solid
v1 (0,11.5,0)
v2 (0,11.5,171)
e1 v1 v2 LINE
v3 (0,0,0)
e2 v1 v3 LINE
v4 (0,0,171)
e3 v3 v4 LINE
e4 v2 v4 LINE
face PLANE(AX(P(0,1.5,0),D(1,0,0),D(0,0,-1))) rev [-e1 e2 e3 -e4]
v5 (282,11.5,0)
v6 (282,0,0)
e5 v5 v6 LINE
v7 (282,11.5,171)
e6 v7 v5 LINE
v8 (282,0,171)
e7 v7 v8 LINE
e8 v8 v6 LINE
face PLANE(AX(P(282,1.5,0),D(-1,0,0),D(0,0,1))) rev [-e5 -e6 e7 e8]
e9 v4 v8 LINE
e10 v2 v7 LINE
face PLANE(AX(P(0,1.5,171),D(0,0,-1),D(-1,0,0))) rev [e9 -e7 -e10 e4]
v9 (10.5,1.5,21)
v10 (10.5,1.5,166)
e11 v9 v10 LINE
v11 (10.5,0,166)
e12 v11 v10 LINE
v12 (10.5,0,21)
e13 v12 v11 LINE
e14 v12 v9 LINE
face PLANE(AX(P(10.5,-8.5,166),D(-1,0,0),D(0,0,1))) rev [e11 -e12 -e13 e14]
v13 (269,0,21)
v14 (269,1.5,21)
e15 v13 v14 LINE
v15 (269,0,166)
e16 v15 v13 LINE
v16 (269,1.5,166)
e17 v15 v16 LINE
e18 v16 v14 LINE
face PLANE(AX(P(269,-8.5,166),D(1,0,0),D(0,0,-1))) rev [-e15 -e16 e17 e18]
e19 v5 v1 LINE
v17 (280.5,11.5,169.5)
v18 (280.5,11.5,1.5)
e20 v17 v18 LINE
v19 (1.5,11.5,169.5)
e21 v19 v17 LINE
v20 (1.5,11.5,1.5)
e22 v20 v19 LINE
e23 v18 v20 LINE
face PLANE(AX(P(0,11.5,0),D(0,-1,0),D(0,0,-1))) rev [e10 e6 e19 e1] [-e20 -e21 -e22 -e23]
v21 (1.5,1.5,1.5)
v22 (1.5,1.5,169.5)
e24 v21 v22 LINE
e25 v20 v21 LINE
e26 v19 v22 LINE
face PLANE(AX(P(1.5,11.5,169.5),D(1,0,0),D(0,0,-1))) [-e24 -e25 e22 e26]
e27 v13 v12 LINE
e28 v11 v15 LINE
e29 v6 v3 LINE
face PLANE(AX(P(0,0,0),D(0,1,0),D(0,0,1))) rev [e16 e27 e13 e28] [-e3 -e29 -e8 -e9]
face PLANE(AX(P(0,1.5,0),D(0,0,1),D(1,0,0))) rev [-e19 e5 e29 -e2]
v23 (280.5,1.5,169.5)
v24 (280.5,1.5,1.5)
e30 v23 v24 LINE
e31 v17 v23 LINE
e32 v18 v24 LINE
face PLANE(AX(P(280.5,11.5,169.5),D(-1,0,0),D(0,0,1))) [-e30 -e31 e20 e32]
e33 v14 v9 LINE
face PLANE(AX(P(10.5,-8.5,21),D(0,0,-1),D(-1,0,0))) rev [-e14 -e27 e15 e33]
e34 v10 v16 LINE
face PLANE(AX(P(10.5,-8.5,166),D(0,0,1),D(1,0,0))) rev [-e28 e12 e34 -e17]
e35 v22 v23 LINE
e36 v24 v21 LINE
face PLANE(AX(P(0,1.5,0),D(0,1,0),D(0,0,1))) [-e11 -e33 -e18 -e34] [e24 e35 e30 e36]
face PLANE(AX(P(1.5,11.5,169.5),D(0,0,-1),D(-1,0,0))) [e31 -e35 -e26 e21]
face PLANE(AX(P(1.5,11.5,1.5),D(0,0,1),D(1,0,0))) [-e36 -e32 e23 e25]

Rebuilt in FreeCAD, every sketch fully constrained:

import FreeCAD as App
import Part
import Sketcher


def add_polygon(sketch, points):
    """Adds a closed chain of lines whose ends are joined by coincident constraints."""
    first, n = sketch.GeometryCount, len(points)
    for a, b in zip(points, points[1:] + points[:1]):
        sketch.addGeometry(Part.LineSegment(App.Vector(*a, 0), App.Vector(*b, 0)), False)
    for i in range(n):
        sketch.addConstraint(Sketcher.Constraint("Coincident", first + i, 2, first + (i + 1) % n, 1))

doc = App.newDocument("Part")
body = doc.addObject("PartDesign::Body", "Body")

# Sketch on XZ plane
sketch1 = body.newObject("Sketcher::SketchObject", "Sketch")
sketch1.AttachmentSupport = (doc.getObject("XZ_Plane"), [""])
sketch1.MapMode = "FlatFace"
add_polygon(sketch1, [(0, 0), (0, 171), (282, 171), (282, 0)])  # lines 0-3
sketch1.addConstraint([
    Sketcher.Constraint("Vertical", 0),
    Sketcher.Constraint("Horizontal", 1),
    Sketcher.Constraint("Vertical", 2),
    Sketcher.Constraint("Horizontal", 3),
    Sketcher.Constraint("Coincident", 3, 2, -1, 1),
    Sketcher.Constraint("DistanceX", 1, 1, 1, 2, 282.0),
    Sketcher.Constraint("DistanceY", 0, 1, 0, 2, 171.0),
])
pad1 = body.newObject("PartDesign::Pad", "Pad")
pad1.Profile = sketch1
pad1.Length = 1.5
pad1.Reversed = True

# Sketch on XZ plane
sketch2 = body.newObject("Sketcher::SketchObject", "Sketch001")
sketch2.AttachmentSupport = (doc.getObject("XZ_Plane"), [""])
sketch2.MapMode = "FlatFace"
sketch2.AttachmentOffset = App.Placement(App.Vector(0, 0, -1.5), App.Rotation())
add_polygon(sketch2, [(0, 0), (0, 171), (282, 171), (282, 0)])  # lines 0-3
add_polygon(sketch2, [(280, 170), (2, 170), (2, 2), (280, 2)])  # lines 4-7
sketch2.addConstraint([
    Sketcher.Constraint("Vertical", 0),
    Sketcher.Constraint("Horizontal", 1),
    Sketcher.Constraint("Vertical", 2),
    Sketcher.Constraint("Horizontal", 3),
    Sketcher.Constraint("Horizontal", 4),
    Sketcher.Constraint("Vertical", 5),
    Sketcher.Constraint("Horizontal", 6),
    Sketcher.Constraint("Vertical", 7),
    Sketcher.Constraint("Coincident", 3, 2, -1, 1),
    Sketcher.Constraint("DistanceX", 1, 1, 1, 2, 282.0),
    Sketcher.Constraint("DistanceX", 4, 2, 4, 1, 279.0),
    Sketcher.Constraint("DistanceY", 0, 1, 0, 2, 171.0),
    Sketcher.Constraint("DistanceY", 5, 2, 5, 1, 168.0),
    Sketcher.Constraint("DistanceX", -1, 1, 4, 2, 1.5),
    Sketcher.Constraint("DistanceY", -1, 1, 4, 2, 169.5),
])
pad2 = body.newObject("PartDesign::Pad", "Pad001")
pad2.Profile = sketch2
pad2.Length = 10
pad2.Reversed = True

# Sketch on XZ plane
sketch3 = body.newObject("Sketcher::SketchObject", "Sketch002")
sketch3.AttachmentSupport = (doc.getObject("XZ_Plane"), [""])
sketch3.MapMode = "FlatFace"
sketch3.AttachmentOffset = App.Placement(App.Vector(0, 0, -1.5), App.Rotation())
add_polygon(sketch3, [(10, 21), (10, 166), (269, 166), (269, 21)])  # lines 0-3
sketch3.addConstraint([
    Sketcher.Constraint("Vertical", 0),
    Sketcher.Constraint("Horizontal", 1),
    Sketcher.Constraint("Vertical", 2),
    Sketcher.Constraint("Horizontal", 3),
    Sketcher.Constraint("DistanceY", 0, 1, 0, 2, 145.0),
    Sketcher.Constraint("DistanceX", 1, 1, 1, 2, 258.5),
    Sketcher.Constraint("DistanceY", -1, 1, 0, 2, 166.0),
    Sketcher.Constraint("DistanceX", -1, 1, 1, 2, 269.0),
])
pocket1 = body.newObject("PartDesign::Pocket", "Pocket")
pocket1.Profile = sketch3
pocket1.Length = 10
pocket1.Reversed = True

doc.recompute()
